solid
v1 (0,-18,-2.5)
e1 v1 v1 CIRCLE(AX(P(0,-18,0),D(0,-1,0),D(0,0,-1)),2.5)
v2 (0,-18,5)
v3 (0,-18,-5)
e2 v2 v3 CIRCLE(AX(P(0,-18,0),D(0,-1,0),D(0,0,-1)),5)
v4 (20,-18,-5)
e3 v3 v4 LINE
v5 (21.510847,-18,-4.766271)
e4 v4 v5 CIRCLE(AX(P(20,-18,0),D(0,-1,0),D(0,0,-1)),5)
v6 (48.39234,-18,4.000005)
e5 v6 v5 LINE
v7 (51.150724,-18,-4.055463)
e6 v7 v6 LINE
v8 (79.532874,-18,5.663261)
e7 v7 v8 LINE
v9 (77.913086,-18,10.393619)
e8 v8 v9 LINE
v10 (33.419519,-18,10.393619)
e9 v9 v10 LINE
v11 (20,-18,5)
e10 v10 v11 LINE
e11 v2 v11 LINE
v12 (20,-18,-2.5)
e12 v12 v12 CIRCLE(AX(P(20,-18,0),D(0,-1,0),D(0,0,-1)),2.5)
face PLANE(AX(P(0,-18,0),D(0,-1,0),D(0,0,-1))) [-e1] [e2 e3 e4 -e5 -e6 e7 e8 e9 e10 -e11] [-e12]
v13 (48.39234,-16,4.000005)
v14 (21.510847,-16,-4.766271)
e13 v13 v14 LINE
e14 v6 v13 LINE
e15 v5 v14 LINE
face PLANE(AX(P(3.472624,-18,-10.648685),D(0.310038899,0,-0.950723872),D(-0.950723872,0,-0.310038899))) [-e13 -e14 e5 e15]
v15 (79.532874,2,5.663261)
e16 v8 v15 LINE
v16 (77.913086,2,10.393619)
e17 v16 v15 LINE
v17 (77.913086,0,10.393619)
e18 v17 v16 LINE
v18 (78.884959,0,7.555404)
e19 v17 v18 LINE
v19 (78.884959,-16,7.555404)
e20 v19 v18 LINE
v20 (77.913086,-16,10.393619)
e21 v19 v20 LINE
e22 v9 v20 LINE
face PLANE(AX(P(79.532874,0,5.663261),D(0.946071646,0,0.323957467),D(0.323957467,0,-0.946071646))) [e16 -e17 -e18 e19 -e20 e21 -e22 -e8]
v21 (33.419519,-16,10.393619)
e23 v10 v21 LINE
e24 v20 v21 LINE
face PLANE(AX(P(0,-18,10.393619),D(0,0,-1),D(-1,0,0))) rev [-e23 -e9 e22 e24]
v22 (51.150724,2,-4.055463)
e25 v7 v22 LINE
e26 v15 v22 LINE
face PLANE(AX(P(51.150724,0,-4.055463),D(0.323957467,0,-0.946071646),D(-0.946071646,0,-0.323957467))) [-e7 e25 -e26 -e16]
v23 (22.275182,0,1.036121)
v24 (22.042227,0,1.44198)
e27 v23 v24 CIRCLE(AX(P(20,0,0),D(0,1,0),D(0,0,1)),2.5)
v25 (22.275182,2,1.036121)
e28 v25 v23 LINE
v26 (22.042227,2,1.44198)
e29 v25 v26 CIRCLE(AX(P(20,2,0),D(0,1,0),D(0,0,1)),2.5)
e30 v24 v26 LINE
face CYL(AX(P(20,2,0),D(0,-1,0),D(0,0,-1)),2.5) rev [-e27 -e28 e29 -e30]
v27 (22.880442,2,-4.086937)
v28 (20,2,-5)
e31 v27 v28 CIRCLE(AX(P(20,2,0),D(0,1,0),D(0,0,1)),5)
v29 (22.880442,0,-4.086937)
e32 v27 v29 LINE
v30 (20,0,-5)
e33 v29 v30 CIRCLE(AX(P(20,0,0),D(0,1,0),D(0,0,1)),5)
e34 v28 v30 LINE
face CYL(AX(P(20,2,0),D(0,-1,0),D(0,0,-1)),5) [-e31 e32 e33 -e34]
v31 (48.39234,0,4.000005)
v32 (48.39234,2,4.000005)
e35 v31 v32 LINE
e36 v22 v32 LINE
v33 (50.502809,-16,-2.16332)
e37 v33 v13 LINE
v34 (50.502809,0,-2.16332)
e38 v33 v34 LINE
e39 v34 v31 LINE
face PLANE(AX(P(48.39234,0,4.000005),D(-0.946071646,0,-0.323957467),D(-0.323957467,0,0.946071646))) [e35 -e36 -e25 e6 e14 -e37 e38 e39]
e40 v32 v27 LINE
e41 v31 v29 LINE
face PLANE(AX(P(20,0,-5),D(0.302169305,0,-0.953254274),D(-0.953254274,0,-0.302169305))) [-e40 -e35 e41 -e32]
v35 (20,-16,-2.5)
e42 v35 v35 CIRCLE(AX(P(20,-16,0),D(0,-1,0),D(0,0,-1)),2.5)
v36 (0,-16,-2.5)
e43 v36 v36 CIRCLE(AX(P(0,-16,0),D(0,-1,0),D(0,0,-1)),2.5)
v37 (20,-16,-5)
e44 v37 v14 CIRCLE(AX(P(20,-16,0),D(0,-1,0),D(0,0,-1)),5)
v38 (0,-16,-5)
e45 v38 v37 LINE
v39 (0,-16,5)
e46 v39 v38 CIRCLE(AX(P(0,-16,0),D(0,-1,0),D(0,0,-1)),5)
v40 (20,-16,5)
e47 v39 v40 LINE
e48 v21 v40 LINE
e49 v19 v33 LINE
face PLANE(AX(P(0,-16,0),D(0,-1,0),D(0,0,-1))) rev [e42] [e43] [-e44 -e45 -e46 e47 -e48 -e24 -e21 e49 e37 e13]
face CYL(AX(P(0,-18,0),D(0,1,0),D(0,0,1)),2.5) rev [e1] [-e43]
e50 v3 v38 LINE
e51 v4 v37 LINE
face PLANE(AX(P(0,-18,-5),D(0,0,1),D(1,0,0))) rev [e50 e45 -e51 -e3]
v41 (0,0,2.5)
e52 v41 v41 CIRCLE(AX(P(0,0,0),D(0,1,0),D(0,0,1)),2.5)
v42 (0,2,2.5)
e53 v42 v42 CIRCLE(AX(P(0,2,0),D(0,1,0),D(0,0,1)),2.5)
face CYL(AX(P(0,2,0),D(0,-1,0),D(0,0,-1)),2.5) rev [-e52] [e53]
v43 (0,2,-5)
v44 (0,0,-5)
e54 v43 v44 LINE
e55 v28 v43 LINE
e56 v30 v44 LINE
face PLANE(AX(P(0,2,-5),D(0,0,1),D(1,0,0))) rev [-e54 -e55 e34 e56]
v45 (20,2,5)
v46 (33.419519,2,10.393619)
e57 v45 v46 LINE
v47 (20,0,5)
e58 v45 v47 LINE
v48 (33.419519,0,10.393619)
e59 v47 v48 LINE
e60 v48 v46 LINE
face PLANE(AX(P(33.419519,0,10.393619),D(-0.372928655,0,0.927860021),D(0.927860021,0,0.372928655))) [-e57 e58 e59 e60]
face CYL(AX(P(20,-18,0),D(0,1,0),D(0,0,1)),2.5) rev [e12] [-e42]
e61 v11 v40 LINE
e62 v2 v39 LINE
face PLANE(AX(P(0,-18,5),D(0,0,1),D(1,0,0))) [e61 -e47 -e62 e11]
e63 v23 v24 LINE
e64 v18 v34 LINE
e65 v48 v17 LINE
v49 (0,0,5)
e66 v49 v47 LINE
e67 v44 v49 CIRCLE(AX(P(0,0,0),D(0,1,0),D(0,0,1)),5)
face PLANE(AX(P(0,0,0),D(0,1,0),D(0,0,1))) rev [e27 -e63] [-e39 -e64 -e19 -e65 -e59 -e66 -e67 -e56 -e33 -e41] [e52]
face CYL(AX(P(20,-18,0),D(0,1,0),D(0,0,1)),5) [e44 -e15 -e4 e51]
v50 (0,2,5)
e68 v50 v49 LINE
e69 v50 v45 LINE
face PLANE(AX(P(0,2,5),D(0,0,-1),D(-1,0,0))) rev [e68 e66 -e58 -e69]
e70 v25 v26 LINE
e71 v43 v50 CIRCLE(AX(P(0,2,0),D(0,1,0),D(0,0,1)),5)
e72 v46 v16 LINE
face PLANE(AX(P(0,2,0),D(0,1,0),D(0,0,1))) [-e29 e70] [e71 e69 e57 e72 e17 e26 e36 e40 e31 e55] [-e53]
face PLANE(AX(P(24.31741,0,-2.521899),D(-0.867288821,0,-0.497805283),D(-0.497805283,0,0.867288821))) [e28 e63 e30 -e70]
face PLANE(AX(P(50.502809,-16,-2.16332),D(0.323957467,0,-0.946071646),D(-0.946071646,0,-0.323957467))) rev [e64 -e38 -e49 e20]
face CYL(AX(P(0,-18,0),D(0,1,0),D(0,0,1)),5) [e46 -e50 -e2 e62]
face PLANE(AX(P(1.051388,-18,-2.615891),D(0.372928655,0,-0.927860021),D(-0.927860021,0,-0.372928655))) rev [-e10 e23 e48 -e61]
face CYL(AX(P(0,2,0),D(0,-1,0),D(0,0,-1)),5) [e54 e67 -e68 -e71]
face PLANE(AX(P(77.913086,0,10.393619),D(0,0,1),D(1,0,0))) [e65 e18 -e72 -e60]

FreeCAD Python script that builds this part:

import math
import FreeCAD as App
import Part
import Sketcher
from FreeCAD import Vector


def add_polygon(sketch, points):
    """Adds a closed chain of lines whose ends are joined by coincident constraints."""
    first, n = sketch.GeometryCount, len(points)
    for a, b in zip(points, points[1:] + points[:1]):
        sketch.addGeometry(Part.LineSegment(App.Vector(*a, 0), App.Vector(*b, 0)), False)
    for i in range(n):
        sketch.addConstraint(Sketcher.Constraint("Coincident", first + i, 2, first + (i + 1) % n, 1))

doc = App.newDocument("Part")
body = doc.addObject("PartDesign::Body", "Body")

sketch1 = body.newObject("Sketcher::SketchObject", "Sketch")
sketch1.AttachmentSupport = (doc.getObject("XZ_Plane"), [""])
sketch1.MapMode = "FlatFace"
sketch1.addGeometry([
    Part.LineSegment(Vector(20, -5, 0), Vector(0, -5, 0)),
    Part.ArcOfCircle(Part.Circle(Vector(0, 0, 0), Vector(0, 0, 1), 5), math.radians(90), math.radians(270)),
    Part.LineSegment(Vector(0, 5, 0), Vector(20, 5, 0)),
    Part.ArcOfCircle(Part.Circle(Vector(20, 0, 0), Vector(0, 0, 1), 5), math.radians(-90), math.radians(90)),
    Part.Circle(Vector(20, 0, 0), Vector(0, 0, 1), 2.5),
    Part.Circle(Vector(0, 0, 0), Vector(0, 0, 1), 2.5),
], False)
sketch1.addConstraint([
    Sketcher.Constraint("Tangent", 0, 2, 1, 2),
    Sketcher.Constraint("Tangent", 1, 1, 2, 1),
    Sketcher.Constraint("Tangent", 2, 2, 3, 2),
    Sketcher.Constraint("Tangent", 3, 1, 0, 1),
    Sketcher.Constraint("Horizontal", 0),
    Sketcher.Constraint("Horizontal", 2),
    Sketcher.Constraint("Coincident", 1, 3, -1, 1),
    Sketcher.Constraint("Coincident", 5, 3, -1, 1),
    Sketcher.Constraint("Coincident", 4, 3, 3, 3),
    Sketcher.Constraint("Equal", 4, 5),
    Sketcher.Constraint("Diameter", 4, 5.0),
    Sketcher.Constraint("Radius", 1, 5.0),
    Sketcher.Constraint("DistanceX", 0, 2, 0, 1, 20.0),
])
pad1 = body.newObject("PartDesign::Pad", "Pad")
pad1.Profile = sketch1
pad1.Length = 2
pad1.Reversed = True

sketch2 = body.newObject("Sketcher::SketchObject", "Sketch001")
sketch2.AttachmentSupport = (doc.getObject("XZ_Plane"), [""])
sketch2.MapMode = "FlatFace"
sketch2.AttachmentOffset = App.Placement(Vector(0, 0, -2), App.Rotation())
add_polygon(sketch2, [(48.39234, 4.000005), (20, -5), (24.31741, -2.521899), (20, 5), (33.419519, 10.393619), (77.913086, 10.393619), (79.532874, 5.663261), (51.150724, -4.055463)])
sketch2.addConstraint([
    Sketcher.Constraint("Horizontal", 4),
    Sketcher.Constraint("Symmetric", 0, 2, 2, 2, -1),
    Sketcher.Constraint("Perpendicular", 1, 2),
    Sketcher.Constraint("Perpendicular", 5, 6),
    Sketcher.Constraint("Perpendicular", 6, 7),
    Sketcher.Constraint("Distance", 5, 5.0),
    Sketcher.Constraint("Distance", 6, 30.0),
    Sketcher.Constraint("DistanceX", -1, 1, 0, 2, 20.0),
    Sketcher.Constraint("DistanceY", 0, 2, -1, 1, 5.0),
    Sketcher.Constraint("DistanceY", 1, 2, -1, 1, 2.521899),
    Sketcher.Constraint("Distance", 3, 14.46287),
    Sketcher.Constraint("Distance", 7, 8.51465),
    Sketcher.Constraint("DistanceX", 4, 1, 4, 2, 44.493567),
    Sketcher.Constraint("DistanceX", -1, 1, 3, 2, 33.419519),
    Sketcher.Constraint("DistanceY", -1, 1, 5, 2, 5.663261),
])
pad2 = body.newObject("PartDesign::Pad", "Pad001")
pad2.Profile = sketch2
pad2.Length = 2

sketch3 = body.newObject("Sketcher::SketchObject", "Sketch002")
sketch3.AttachmentSupport = (doc.getObject("XZ_Plane"), [""])
sketch3.MapMode = "FlatFace"
add_polygon(sketch3, [(51.150724, -4.055463), (79.532874, 5.663261), (78.884959, 7.555404), (50.502809, -2.16332)])
sketch3.addConstraint([
    Sketcher.Constraint("Perpendicular", 0, 1),
    Sketcher.Constraint("Perpendicular", 1, 2),
    Sketcher.Constraint("Perpendicular", 2, 3),
    Sketcher.Constraint("Distance", 0, 30.0),
    Sketcher.Constraint("Distance", 1, 2.0),
    Sketcher.Constraint("DistanceY", -1, 1, 0, 2, 5.663261),
    Sketcher.Constraint("DistanceX", -1, 1, 1, 2, 78.884959),
    Sketcher.Constraint("DistanceX", -1, 1, 2, 2, 50.502809),
])
pad3 = body.newObject("PartDesign::Pad", "Pad002")
pad3.Profile = sketch3
pad3.Length = 16

sketch4 = body.newObject("Sketcher::SketchObject", "Sketch003")
sketch4.AttachmentSupport = (doc.getObject("XZ_Plane"), [""])
sketch4.MapMode = "FlatFace"
sketch4.AttachmentOffset = App.Placement(Vector(0, 0, 18), App.Rotation())
sketch4.addGeometry([
    Part.LineSegment(Vector(48.39234, 4.000005, 0), Vector(51.150724, -4.055463, 0)),
    Part.LineSegment(Vector(51.150724, -4.055463, 0), Vector(79.532874, 5.663261, 0)),
    Part.LineSegment(Vector(79.532874, 5.663261, 0), Vector(77.913086, 10.393619, 0)),
    Part.LineSegment(Vector(77.913086, 10.393619, 0), Vector(33.419519, 10.393619, 0)),
    Part.LineSegment(Vector(33.419519, 10.393619, 0), Vector(20, 5, 0)),
    Part.LineSegment(Vector(20, 5, 0), Vector(0, 5, 0)),
    Part.ArcOfCircle(Part.Circle(Vector(0, 0, 0), Vector(0, 0, 1), 5), math.radians(90), math.radians(270)),
    Part.LineSegment(Vector(0, -5, 0), Vector(20, -5, 0)),
    Part.ArcOfCircle(Part.Circle(Vector(20, 0, 0), Vector(0, 0, 1), 5), math.radians(-90), math.radians(-72.412057)),
    Part.LineSegment(Vector(21.510847, -4.766271, 0), Vector(21.589437, -4.740643, 0)),
    Part.LineSegment(Vector(21.589437, -4.740643, 0), Vector(48.39234, 4.000005, 0)),
    Part.Circle(Vector(0, 0, 0), Vector(0, 0, 1), 2.5),
    Part.Circle(Vector(20, 0, 0), Vector(0, 0, 1), 2.5),
], False)
sketch4.addConstraint([
    Sketcher.Constraint("Coincident", 0, 2, 1, 1),
    Sketcher.Constraint("Coincident", 1, 2, 2, 1),
    Sketcher.Constraint("Coincident", 2, 2, 3, 1),
    Sketcher.Constraint("Coincident", 3, 2, 4, 1),
    Sketcher.Constraint("Coincident", 4, 2, 5, 1),
    Sketcher.Constraint("Tangent", 5, 2, 6, 1),
    Sketcher.Constraint("Tangent", 6, 2, 7, 1),
    Sketcher.Constraint("Tangent", 7, 2, 8, 1),
    Sketcher.Constraint("Coincident", 8, 2, 9, 1),
    Sketcher.Constraint("Coincident", 9, 2, 10, 1),
    Sketcher.Constraint("Coincident", 10, 2, 0, 1),
    Sketcher.Constraint("Horizontal", 3),
    Sketcher.Constraint("Horizontal", 5),
    Sketcher.Constraint("Horizontal", 7),
    Sketcher.Constraint("Coincident", 6, 3, -1, 1),
    Sketcher.Constraint("Coincident", 11, 3, -1, 1),
    Sketcher.Constraint("Coincident", 12, 3, 8, 3),
    Sketcher.Constraint("Equal", 6, 8),
    Sketcher.Constraint("Equal", 11, 12),
    Sketcher.Constraint("Perpendicular", 0, 1),
    Sketcher.Constraint("Perpendicular", 1, 2),
    Sketcher.Constraint("Parallel", 9, 10),
    Sketcher.Constraint("Vertical", 12, 3, 4, 2),
    Sketcher.Constraint("Diameter", 11, 5.0),
    Sketcher.Constraint("Radius", 6, 5.0),
    Sketcher.Constraint("DistanceX", 5, 2, 5, 1, 20.0),
    Sketcher.Constraint("Distance", 1, 30.0),
    Sketcher.Constraint("Distance", 2, 5.0),
    Sketcher.Constraint("Distance", 10, 28.192101),
    Sketcher.Constraint("Distance", 0, 8.51465),
    Sketcher.Constraint("Distance", 4, 14.46287),
    Sketcher.Constraint("DistanceX", 3, 2, 3, 1, 44.493567),
    Sketcher.Constraint("DistanceY", -1, 1, 1, 2, 5.663261),
    Sketcher.Constraint("DistanceY", -1, 1, 2, 2, 10.393619),
    Sketcher.Constraint("DistanceY", 8, 2, -1, 1, 4.766271),
])
pad4 = body.newObject("PartDesign::Pad", "Pad003")
pad4.Profile = sketch4
pad4.Length = 2
pad4.Reversed = True

doc.recompute()
